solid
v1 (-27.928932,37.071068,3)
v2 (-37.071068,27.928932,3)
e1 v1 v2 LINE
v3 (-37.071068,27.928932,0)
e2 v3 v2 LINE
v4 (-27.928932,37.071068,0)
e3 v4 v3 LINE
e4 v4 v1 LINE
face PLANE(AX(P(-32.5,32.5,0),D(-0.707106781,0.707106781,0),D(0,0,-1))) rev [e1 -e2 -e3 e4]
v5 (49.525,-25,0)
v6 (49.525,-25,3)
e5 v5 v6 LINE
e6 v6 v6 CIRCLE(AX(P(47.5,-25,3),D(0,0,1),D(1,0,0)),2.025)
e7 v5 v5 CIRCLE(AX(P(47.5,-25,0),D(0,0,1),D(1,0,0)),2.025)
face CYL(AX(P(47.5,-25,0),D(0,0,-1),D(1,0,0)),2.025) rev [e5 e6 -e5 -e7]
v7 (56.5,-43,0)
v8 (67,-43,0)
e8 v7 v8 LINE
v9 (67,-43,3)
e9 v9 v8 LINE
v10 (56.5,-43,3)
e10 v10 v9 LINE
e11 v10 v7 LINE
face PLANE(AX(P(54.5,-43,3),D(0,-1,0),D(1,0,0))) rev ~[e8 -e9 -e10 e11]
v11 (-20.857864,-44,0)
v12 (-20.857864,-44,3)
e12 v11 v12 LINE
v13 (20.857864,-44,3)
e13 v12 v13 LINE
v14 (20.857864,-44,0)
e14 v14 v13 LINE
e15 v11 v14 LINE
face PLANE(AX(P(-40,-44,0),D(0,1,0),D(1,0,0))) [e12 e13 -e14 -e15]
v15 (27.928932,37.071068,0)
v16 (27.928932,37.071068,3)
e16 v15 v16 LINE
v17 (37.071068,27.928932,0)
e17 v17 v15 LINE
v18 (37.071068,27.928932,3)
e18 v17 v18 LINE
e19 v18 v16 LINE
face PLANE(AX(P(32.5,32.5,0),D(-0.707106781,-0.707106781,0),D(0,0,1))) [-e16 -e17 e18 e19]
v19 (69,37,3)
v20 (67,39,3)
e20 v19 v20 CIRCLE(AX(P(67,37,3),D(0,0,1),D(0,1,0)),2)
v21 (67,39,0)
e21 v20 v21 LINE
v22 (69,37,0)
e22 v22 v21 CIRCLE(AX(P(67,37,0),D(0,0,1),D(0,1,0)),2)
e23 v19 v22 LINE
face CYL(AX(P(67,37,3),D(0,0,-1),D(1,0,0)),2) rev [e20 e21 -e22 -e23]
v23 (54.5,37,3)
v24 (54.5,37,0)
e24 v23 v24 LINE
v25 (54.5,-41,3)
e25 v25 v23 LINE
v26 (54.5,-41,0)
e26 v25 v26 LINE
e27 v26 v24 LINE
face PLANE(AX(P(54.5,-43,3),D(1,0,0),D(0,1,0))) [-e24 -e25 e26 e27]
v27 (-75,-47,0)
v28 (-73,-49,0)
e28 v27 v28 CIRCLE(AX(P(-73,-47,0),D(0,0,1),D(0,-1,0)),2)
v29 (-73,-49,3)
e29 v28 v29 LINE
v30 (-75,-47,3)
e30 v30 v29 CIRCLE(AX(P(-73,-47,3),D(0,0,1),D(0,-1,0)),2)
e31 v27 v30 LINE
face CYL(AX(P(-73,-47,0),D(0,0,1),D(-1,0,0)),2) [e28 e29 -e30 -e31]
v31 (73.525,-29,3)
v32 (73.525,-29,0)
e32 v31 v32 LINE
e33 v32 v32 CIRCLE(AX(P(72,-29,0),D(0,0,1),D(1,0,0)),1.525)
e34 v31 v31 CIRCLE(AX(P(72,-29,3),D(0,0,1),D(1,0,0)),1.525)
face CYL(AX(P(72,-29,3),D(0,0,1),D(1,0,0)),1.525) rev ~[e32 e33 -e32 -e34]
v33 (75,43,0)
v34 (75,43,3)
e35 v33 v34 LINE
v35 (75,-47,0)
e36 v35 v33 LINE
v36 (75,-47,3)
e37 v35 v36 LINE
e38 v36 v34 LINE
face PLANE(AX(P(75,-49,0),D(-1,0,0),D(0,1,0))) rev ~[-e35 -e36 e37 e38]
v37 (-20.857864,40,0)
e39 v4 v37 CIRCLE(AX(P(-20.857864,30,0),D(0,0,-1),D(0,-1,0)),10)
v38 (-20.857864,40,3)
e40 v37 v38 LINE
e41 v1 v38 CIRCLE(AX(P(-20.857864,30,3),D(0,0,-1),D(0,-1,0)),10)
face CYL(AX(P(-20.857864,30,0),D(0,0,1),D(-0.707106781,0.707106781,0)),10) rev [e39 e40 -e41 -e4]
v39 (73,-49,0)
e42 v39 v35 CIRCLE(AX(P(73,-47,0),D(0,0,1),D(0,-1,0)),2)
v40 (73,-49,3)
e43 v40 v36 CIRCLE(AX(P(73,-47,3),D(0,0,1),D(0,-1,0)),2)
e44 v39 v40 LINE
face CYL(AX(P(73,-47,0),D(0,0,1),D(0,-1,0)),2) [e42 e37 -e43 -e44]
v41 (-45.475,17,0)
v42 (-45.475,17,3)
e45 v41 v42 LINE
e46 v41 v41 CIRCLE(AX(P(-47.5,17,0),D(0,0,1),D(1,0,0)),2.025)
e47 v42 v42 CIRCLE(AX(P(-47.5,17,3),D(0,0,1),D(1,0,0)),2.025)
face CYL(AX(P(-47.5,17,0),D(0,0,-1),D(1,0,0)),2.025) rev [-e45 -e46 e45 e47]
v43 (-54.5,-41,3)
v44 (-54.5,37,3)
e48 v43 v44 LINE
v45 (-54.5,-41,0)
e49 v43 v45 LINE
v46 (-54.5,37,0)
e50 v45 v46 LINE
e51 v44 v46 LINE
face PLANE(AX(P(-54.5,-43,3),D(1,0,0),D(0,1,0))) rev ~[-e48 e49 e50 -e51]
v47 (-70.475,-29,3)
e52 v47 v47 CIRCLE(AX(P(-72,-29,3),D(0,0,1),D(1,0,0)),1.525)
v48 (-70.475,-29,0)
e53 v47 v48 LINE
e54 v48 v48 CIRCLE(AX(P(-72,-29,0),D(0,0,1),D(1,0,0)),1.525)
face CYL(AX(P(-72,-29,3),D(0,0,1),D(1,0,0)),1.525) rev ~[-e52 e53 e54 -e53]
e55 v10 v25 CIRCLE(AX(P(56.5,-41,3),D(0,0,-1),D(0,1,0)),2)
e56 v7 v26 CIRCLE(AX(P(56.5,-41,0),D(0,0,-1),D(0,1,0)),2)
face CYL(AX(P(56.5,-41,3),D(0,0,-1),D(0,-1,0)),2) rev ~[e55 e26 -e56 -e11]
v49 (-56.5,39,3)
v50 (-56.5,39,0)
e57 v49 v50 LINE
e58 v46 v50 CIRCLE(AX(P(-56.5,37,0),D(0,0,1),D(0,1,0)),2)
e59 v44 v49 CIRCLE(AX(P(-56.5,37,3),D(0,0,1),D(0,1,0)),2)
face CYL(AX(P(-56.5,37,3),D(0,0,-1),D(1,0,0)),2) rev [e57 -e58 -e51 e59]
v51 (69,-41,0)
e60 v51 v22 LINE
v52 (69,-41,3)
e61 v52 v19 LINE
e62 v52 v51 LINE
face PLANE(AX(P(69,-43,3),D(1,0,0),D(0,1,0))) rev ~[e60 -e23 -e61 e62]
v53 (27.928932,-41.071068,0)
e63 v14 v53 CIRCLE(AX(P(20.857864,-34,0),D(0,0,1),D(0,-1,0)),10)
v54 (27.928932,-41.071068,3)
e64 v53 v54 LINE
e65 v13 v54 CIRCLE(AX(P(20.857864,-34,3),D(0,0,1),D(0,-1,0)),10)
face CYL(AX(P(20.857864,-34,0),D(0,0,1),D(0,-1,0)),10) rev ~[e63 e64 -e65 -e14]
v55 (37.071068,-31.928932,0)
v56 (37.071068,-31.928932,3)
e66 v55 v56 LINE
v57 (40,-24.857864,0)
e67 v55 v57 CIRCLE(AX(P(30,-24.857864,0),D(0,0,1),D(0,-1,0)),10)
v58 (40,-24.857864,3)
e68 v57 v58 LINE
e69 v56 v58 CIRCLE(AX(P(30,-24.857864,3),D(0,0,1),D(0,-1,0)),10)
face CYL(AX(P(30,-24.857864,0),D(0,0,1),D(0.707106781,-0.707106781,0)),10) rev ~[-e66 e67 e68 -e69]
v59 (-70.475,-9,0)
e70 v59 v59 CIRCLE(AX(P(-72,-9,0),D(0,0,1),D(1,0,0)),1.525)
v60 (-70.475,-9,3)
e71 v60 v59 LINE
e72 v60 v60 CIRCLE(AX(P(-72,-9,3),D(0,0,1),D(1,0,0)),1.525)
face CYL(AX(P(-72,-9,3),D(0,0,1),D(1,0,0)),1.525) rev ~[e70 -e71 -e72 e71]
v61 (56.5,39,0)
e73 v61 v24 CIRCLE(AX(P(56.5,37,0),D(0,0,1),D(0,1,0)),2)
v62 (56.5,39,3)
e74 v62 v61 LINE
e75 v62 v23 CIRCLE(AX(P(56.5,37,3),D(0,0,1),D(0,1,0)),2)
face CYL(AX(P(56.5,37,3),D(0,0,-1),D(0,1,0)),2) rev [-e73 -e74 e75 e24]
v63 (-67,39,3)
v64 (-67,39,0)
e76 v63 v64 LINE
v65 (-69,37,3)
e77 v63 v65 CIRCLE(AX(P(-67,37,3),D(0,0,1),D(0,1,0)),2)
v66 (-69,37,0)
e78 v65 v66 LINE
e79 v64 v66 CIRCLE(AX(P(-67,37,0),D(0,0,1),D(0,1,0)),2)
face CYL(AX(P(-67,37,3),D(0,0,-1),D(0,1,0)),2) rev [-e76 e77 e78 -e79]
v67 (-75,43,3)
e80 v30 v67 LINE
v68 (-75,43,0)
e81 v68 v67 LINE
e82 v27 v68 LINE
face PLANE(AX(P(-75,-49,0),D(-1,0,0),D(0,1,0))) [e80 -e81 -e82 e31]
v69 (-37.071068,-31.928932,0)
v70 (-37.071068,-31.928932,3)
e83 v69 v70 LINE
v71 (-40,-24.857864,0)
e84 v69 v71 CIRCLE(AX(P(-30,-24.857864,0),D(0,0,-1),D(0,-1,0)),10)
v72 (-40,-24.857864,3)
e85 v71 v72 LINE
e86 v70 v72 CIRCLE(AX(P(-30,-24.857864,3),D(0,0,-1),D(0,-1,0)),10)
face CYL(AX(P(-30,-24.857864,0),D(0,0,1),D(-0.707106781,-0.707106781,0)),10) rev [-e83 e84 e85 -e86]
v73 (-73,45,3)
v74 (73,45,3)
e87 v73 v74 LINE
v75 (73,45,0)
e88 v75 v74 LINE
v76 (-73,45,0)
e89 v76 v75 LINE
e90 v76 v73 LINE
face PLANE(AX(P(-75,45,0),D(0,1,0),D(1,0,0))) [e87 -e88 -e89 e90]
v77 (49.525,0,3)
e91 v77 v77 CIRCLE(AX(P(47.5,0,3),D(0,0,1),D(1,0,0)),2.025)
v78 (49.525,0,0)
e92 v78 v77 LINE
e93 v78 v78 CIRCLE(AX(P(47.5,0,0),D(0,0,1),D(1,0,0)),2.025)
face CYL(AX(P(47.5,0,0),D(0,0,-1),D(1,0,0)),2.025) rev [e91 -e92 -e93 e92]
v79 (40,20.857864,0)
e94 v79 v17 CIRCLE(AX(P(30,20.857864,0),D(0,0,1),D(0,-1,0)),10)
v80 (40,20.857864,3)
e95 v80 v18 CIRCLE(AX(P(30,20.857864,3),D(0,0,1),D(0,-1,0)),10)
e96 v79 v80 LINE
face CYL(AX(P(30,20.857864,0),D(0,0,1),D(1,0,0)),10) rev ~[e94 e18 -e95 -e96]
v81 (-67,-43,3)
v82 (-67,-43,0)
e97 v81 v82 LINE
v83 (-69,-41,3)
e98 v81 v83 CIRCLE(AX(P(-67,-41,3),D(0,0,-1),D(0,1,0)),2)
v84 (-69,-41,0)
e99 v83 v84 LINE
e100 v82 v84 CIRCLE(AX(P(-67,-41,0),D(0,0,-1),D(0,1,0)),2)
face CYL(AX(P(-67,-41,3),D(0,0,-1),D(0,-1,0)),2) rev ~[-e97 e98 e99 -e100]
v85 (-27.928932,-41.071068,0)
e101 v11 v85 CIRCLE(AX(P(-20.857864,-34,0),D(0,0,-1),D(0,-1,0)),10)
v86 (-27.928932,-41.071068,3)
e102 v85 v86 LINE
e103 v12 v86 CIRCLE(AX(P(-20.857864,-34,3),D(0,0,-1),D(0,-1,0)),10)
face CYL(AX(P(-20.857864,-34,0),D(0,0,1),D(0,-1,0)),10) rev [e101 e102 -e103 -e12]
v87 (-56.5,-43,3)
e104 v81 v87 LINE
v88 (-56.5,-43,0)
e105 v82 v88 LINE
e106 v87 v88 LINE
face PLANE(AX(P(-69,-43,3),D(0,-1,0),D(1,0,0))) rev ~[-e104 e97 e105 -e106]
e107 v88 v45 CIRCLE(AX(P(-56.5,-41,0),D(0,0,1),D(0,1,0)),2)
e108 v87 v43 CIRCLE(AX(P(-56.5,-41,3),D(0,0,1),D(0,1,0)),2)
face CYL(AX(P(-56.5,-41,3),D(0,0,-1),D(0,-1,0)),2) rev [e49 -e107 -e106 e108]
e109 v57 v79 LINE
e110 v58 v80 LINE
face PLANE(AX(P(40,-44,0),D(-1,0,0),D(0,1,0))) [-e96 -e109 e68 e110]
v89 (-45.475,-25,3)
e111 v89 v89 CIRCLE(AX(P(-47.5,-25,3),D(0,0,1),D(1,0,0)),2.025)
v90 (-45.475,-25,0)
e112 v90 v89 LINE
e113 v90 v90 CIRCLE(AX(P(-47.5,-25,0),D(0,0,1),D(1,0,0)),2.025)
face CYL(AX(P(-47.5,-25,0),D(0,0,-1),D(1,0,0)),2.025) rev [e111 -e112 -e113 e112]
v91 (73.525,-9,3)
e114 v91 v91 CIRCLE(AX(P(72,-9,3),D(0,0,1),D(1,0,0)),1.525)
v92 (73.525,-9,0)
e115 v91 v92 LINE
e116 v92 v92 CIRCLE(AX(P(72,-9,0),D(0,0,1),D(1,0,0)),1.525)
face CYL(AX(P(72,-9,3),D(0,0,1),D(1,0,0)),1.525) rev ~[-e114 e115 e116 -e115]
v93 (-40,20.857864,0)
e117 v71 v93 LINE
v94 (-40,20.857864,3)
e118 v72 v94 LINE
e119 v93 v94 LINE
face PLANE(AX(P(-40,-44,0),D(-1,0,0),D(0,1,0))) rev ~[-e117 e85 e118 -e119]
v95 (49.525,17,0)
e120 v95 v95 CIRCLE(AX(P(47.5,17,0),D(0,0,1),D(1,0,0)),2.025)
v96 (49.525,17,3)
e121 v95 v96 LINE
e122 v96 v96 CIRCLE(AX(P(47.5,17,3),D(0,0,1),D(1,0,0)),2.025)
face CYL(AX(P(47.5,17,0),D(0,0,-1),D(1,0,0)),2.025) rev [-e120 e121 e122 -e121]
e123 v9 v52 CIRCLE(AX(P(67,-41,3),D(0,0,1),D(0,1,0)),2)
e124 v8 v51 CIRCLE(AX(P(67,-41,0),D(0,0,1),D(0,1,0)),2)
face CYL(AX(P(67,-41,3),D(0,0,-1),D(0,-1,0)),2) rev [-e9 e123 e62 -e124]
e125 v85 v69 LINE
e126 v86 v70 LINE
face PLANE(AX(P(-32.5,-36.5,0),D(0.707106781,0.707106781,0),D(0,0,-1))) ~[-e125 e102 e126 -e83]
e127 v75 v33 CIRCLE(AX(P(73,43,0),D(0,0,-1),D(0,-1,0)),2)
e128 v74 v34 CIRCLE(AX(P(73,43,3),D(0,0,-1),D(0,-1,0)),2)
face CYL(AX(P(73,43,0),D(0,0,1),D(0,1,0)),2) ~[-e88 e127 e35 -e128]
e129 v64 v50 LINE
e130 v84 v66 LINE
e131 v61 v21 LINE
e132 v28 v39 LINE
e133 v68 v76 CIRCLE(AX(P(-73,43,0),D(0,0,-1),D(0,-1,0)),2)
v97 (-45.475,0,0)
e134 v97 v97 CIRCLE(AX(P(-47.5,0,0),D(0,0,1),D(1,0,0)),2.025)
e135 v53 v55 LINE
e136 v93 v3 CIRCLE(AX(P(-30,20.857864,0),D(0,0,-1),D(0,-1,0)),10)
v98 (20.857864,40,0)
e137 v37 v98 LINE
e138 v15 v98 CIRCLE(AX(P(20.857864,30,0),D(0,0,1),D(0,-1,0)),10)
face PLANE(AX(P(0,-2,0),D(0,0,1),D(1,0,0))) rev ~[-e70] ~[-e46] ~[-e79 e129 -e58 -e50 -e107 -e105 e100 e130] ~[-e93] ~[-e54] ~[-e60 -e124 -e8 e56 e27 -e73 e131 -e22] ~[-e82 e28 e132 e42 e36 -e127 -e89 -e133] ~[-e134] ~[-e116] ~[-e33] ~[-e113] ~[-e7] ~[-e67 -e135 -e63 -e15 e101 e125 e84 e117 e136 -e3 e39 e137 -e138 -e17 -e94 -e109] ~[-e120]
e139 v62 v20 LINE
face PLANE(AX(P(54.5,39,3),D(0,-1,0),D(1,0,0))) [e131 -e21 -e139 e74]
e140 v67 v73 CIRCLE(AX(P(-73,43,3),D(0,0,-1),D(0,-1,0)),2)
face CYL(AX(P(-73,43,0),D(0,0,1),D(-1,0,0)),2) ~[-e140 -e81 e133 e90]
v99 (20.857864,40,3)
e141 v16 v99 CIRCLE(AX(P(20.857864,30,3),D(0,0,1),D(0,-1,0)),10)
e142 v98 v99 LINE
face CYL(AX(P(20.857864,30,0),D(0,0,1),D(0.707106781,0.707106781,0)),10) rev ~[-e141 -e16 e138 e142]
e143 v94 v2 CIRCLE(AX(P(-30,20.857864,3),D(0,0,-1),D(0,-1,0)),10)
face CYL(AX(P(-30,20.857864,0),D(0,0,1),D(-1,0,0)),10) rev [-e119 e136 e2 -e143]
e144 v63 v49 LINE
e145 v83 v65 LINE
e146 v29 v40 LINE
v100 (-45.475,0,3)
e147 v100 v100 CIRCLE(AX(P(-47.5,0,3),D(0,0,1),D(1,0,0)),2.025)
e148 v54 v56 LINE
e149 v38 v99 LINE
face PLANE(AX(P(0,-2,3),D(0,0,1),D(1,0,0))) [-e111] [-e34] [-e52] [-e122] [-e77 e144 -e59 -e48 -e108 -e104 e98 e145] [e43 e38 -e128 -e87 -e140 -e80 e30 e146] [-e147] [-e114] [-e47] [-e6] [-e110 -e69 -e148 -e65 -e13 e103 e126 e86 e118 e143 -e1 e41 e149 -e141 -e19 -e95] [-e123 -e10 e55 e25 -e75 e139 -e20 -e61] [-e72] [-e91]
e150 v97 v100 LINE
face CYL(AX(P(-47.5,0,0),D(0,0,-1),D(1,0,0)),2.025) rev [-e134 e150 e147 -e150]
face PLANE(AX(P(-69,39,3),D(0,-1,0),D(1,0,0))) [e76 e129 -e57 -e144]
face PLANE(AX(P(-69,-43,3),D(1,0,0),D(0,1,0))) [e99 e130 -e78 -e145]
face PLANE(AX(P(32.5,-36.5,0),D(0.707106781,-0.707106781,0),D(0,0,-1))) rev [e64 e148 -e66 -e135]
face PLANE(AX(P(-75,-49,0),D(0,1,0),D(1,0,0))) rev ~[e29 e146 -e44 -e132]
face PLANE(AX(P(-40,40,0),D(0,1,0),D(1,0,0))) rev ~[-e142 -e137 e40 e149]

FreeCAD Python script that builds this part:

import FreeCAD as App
import Part
import Sketcher


def edges_at(feature, points):
    """Names of the edges that pass closest to the given points."""
    edges = feature.Shape.Edges
    near = lambda p: min(range(len(edges)), key=lambda i: edges[i].distToShape(Part.Vertex(*p))[0])
    return sorted({f"Edge{near(p) + 1}" for p in points})


def add_polygon(sketch, points):
    """Adds a closed chain of lines whose ends are joined by coincident constraints."""
    first, n = sketch.GeometryCount, len(points)
    for a, b in zip(points, points[1:] + points[:1]):
        sketch.addGeometry(Part.LineSegment(App.Vector(*a, 0), App.Vector(*b, 0)), False)
    for i in range(n):
        sketch.addConstraint(Sketcher.Constraint("Coincident", first + i, 2, first + (i + 1) % n, 1))

doc = App.newDocument("Part")
body = doc.addObject("PartDesign::Body", "Body")

# Sketch on XY plane
sketch1 = doc.addObject("Sketcher::SketchObject", "Sketch")
body.addObject(sketch1)
sketch1.AttachmentSupport = (doc.XY_Plane, [""])
sketch1.MapMode = "FlatFace"
add_polygon(sketch1, [(-75, 45), (-75, -49), (75, -49), (75, 45)])  # lines 0-3
sketch1.addGeometry(Part.Circle(App.Vector(-47.5, -25, 0), App.Vector(0, 0, 1), 2), False)  # 4
sketch1.addGeometry(Part.Circle(App.Vector(47.5, -25, 0), App.Vector(0, 0, 1), 2), False)  # 5
sketch1.addGeometry(Part.Circle(App.Vector(-47.5, 0, 0), App.Vector(0, 0, 1), 2), False)  # 6
sketch1.addGeometry(Part.Circle(App.Vector(-47.5, 17, 0), App.Vector(0, 0, 1), 2), False)  # 7
add_polygon(sketch1, [(40, -44), (-40, -44), (-40, 40), (40, 40)])  # lines 8-11
sketch1.addGeometry(Part.Circle(App.Vector(47.5, 0, 0), App.Vector(0, 0, 1), 2), False)  # 12
sketch1.addGeometry(Part.Circle(App.Vector(47.5, 17, 0), App.Vector(0, 0, 1), 2), False)  # 13
sketch1.addConstraint(Sketcher.Constraint("Vertical", 0))
sketch1.addConstraint(Sketcher.Constraint("Horizontal", 1))
sketch1.addConstraint(Sketcher.Constraint("Vertical", 2))
sketch1.addConstraint(Sketcher.Constraint("Horizontal", 3))
sketch1.addConstraint(Sketcher.Constraint("Horizontal", 8))
sketch1.addConstraint(Sketcher.Constraint("Vertical", 9))
sketch1.addConstraint(Sketcher.Constraint("Horizontal", 10))
sketch1.addConstraint(Sketcher.Constraint("Vertical", 11))
sketch1.addConstraint(Sketcher.Constraint("Equal", 4, 5))
sketch1.addConstraint(Sketcher.Constraint("Equal", 5, 6))
sketch1.addConstraint(Sketcher.Constraint("Equal", 6, 7))
sketch1.addConstraint(Sketcher.Constraint("Equal", 7, 12))
sketch1.addConstraint(Sketcher.Constraint("Equal", 12, 13))
sketch1.addConstraint(Sketcher.Constraint("Symmetric", 6, 3, 12, 3, -1, 1))
sketch1.addConstraint(Sketcher.Constraint("Symmetric", 4, 3, 5, 3, -2))
sketch1.addConstraint(Sketcher.Constraint("Symmetric", 7, 3, 13, 3, -2))
sketch1.addConstraint(Sketcher.Constraint("PointOnObject", 6, 3, -1))
sketch1.addConstraint(Sketcher.Constraint("Vertical", 4, 3, 6, 3))
sketch1.addConstraint(Sketcher.Constraint("Vertical", 6, 3, 7, 3))
sketch1.addConstraint(Sketcher.Constraint("Diameter", 4, 4.05))
sketch1.addConstraint(Sketcher.Constraint("DistanceX", 1, 1, 1, 2, 150.0))
sketch1.addConstraint(Sketcher.Constraint("DistanceX", 8, 2, 8, 1, 80.0))
sketch1.addConstraint(Sketcher.Constraint("DistanceY", 0, 2, 0, 1, 94.0))
sketch1.addConstraint(Sketcher.Constraint("DistanceY", 9, 1, 9, 2, 84.0))
sketch1.addConstraint(Sketcher.Constraint("DistanceY", 4, 3, -1, 1, 25.0))
sketch1.addConstraint(Sketcher.Constraint("DistanceY", -1, 1, 7, 3, 17.0))
sketch1.addConstraint(Sketcher.Constraint("DistanceX", 0, 2, -1, 1, 75.0))
sketch1.addConstraint(Sketcher.Constraint("DistanceY", 0, 2, -1, 1, 49.0))
sketch1.addConstraint(Sketcher.Constraint("DistanceX", 8, 2, -1, 1, 40.0))
sketch1.addConstraint(Sketcher.Constraint("DistanceY", 8, 2, -1, 1, 44.0))
sketch1.addConstraint(Sketcher.Constraint("DistanceX", 4, 3, 5, 3, 95.0))
pad1 = doc.addObject("PartDesign::Pad", "Pad")
body.addObject(pad1)
pad1.Profile = sketch1
pad1.Length = 3
doc.recompute()

chamfer = doc.addObject("PartDesign::Chamfer", "Chamfer")
body.addObject(chamfer)
chamfer.Base = (pad1, edges_at(pad1, [
    (40, -44, 1.5),
    (40, 40, 1.5),
    (-40, 40, 1.5),
    (-40, -44, 1.5),
]))
chamfer.Size = 15
doc.recompute()

fillet = doc.addObject("PartDesign::Fillet", "Fillet")
body.addObject(fillet)
fillet.Base = (chamfer, edges_at(chamfer, [
    (-25, -44, 1.5),
    (25, -44, 1.5),
    (40, 25, 1.5),
    (40, -29, 1.5),
    (-25, 40, 1.5),
    (25, 40, 1.5),
    (-40, -29, 1.5),
    (-40, 25, 1.5),
]))
fillet.Radius = 10

# Sketch on XY plane
sketch2 = doc.addObject("Sketcher::SketchObject", "Sketch001")
body.addObject(sketch2)
sketch2.AttachmentSupport = (doc.XY_Plane, [""])
sketch2.MapMode = "FlatFace"
sketch2.AttachmentOffset = App.Placement(App.Vector(0, 0, 3), App.Rotation())
add_polygon(sketch2, [(-69, 39), (-69, -43), (-54, -43), (-54, 39)])  # lines 0-3
add_polygon(sketch2, [(54, 39), (54, -43), (69, -43), (69, 39)])  # lines 4-7
sketch2.addConstraint(Sketcher.Constraint("Vertical", 0))
sketch2.addConstraint(Sketcher.Constraint("Horizontal", 1))
sketch2.addConstraint(Sketcher.Constraint("Vertical", 2))
sketch2.addConstraint(Sketcher.Constraint("Horizontal", 3))
sketch2.addConstraint(Sketcher.Constraint("Vertical", 4))
sketch2.addConstraint(Sketcher.Constraint("Horizontal", 5))
sketch2.addConstraint(Sketcher.Constraint("Vertical", 6))
sketch2.addConstraint(Sketcher.Constraint("Horizontal", 7))
sketch2.addConstraint(Sketcher.Constraint("Symmetric", 1, 2, 4, 2, -2))
sketch2.addConstraint(Sketcher.Constraint("Symmetric", 3, 2, 6, 2, -2))
sketch2.addConstraint(Sketcher.Constraint("DistanceY", 0, 2, 0, 1, 82.0))
sketch2.addConstraint(Sketcher.Constraint("DistanceX", 1, 1, 1, 2, 14.5))
sketch2.addConstraint(Sketcher.Constraint("DistanceX", 0, 2, -1, 1, 69.0))
sketch2.addConstraint(Sketcher.Constraint("DistanceY", 0, 2, -1, 1, 43.0))
pocket1 = doc.addObject("PartDesign::Pocket", "Pocket")
body.addObject(pocket1)
pocket1.Profile = sketch2
pocket1.Length = 10
doc.recompute()

fillet2 = doc.addObject("PartDesign::Fillet", "Fillet001")
body.addObject(fillet2)
fillet2.Base = (pocket1, edges_at(pocket1, [
    (-69, -43, 1.5),
    (-69, 39, 1.5),
    (-54.5, 39, 1.5),
    (-54.5, -43, 1.5),
    (69, 39, 1.5),
    (69, -43, 1.5),
    (54.5, -43, 1.5),
    (54.5, 39, 1.5),
    (-75, 45, 1.5),
    (75, 45, 1.5),
    (75, -49, 1.5),
    (-75, -49, 1.5),
]))
fillet2.Radius = 2

# Sketch on XY plane
sketch3 = doc.addObject("Sketcher::SketchObject", "Sketch002")
body.addObject(sketch3)
sketch3.AttachmentSupport = (doc.XY_Plane, [""])
sketch3.MapMode = "FlatFace"
sketch3.AttachmentOffset = App.Placement(App.Vector(0, 0, 3), App.Rotation())
sketch3.addGeometry(Part.Circle(App.Vector(72, -9, 0), App.Vector(0, 0, 1), 1.5), False)
sketch3.addGeometry(Part.Circle(App.Vector(72, -29, 0), App.Vector(0, 0, 1), 1.5), False)
sketch3.addGeometry(Part.Circle(App.Vector(-72, -29, 0), App.Vector(0, 0, 1), 1.5), False)
sketch3.addGeometry(Part.Circle(App.Vector(-72, -9, 0), App.Vector(0, 0, 1), 1.5), False)
sketch3.addConstraint(Sketcher.Constraint("Equal", 0, 1))
sketch3.addConstraint(Sketcher.Constraint("Equal", 1, 2))
sketch3.addConstraint(Sketcher.Constraint("Equal", 2, 3))
sketch3.addConstraint(Sketcher.Constraint("Symmetric", 1, 3, 2, 3, -2))
sketch3.addConstraint(Sketcher.Constraint("Symmetric", 0, 3, 3, 3, -2))
sketch3.addConstraint(Sketcher.Constraint("Vertical", 0, 3, 1, 3))
sketch3.addConstraint(Sketcher.Constraint("Diameter", 0, 3.05))
sketch3.addConstraint(Sketcher.Constraint("DistanceX", -1, 1, 0, 3, 72.0))
sketch3.addConstraint(Sketcher.Constraint("DistanceY", 0, 3, -1, 1, 9.0))
sketch3.addConstraint(Sketcher.Constraint("DistanceY", 1, 3, -1, 1, 29.0))
pocket2 = doc.addObject("PartDesign::Pocket", "Pocket001")
body.addObject(pocket2)
pocket2.Profile = sketch3
pocket2.Length = 10

doc.recompute()
